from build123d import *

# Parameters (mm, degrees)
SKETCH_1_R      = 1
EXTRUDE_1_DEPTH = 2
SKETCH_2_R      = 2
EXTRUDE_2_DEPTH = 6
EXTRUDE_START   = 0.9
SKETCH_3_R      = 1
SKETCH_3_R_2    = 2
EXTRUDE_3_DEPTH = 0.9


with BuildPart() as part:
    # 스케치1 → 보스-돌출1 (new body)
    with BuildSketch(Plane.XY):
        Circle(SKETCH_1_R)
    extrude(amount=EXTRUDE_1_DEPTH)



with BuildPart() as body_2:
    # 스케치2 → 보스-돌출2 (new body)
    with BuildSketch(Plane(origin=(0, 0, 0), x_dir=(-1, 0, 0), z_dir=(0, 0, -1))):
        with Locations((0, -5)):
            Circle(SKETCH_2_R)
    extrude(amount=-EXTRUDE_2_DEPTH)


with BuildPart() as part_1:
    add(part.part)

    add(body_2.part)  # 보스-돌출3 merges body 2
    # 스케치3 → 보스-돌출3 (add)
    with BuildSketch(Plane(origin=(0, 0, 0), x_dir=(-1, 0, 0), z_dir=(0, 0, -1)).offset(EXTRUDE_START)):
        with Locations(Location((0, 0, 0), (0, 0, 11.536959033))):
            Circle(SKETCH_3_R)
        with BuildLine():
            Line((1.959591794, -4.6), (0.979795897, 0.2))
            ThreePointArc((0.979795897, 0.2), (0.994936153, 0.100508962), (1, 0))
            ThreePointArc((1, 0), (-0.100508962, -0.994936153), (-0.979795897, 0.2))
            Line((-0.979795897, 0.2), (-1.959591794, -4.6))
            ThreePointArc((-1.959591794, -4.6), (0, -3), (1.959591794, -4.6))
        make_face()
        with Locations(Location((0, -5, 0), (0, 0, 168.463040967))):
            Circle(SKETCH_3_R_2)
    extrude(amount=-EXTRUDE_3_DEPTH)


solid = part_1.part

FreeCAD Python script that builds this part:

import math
import FreeCAD as App
import Part
import Sketcher

V = App.Vector
Q = App.Units.Quantity

doc = App.newDocument("Part")
body = doc.addObject("PartDesign::Body", "Body")

# Sketch on XY plane
sketch1 = doc.addObject("Sketcher::SketchObject", "Sketch")
body.addObject(sketch1)
sketch1.AttachmentSupport = (doc.XY_Plane, [""])
sketch1.MapMode = "FlatFace"
sketch1.addGeometry(Part.Circle(V(0, 0, 0), V(0, 0, 1), 1), False)
sketch1.addConstraint(Sketcher.Constraint("Coincident", 0, 3, -1, 1))
sketch1.addConstraint(Sketcher.Constraint("Diameter", 0, Q("2 mm")))
pad1 = doc.addObject("PartDesign::Pad", "Pad")
body.addObject(pad1)
pad1.Profile = sketch1
pad1.Length = 2
body2 = doc.addObject("PartDesign::Body", "Body001")

# Sketch on XY plane
sketch2 = doc.addObject("Sketcher::SketchObject", "Sketch001")
body2.addObject(sketch2)
sketch2.AttachmentSupport = (doc.getObject("XY_Plane001"), [""])
sketch2.MapMode = "FlatFace"
sketch2.addGeometry(Part.Circle(V(0, -5, 0), V(0, 0, 1), 2), False)
sketch2.addConstraint(Sketcher.Constraint("PointOnObject", 0, 3, -2))
sketch2.addConstraint(Sketcher.Constraint("Diameter", 0, Q("4 mm")))
sketch2.addConstraint(Sketcher.Constraint("DistanceY", 0, 3, -1, 1, Q("5 mm")))
pad2 = doc.addObject("PartDesign::Pad", "Pad001")
body2.addObject(pad2)
pad2.Profile = sketch2
pad2.Length = 6
body.AllowCompound = True
doc.recompute()

boolean = doc.addObject("PartDesign::Boolean", "Boolean")
body.addObject(boolean)
boolean.Type = "Fuse"
boolean.addObjects([body2])

# Sketch on XY plane
sketch3 = doc.addObject("Sketcher::SketchObject", "Sketch002")
body.addObject(sketch3)
sketch3.AttachmentSupport = (doc.XY_Plane, [""])
sketch3.MapMode = "FlatFace"
sketch3.AttachmentOffset = App.Placement(V(0, 0, -0.9), App.Rotation())
sketch3.addGeometry(Part.ArcOfCircle(Part.Circle(V(0, 0, 0), V(0, 0, 1), 1), math.radians(12), math.radians(168)), False)
sketch3.addGeometry(Part.LineSegment(V(1, 0.2, 0), V(2, -4.6, 0)), False)
sketch3.addGeometry(Part.ArcOfCircle(Part.Circle(V(0, -5, 0), V(0, 0, 1), 2), math.radians(168), math.radians(372)), False)
sketch3.addGeometry(Part.LineSegment(V(-2, -4.6, 0), V(-1, 0.2, 0)), False)
sketch3.addConstraint(Sketcher.Constraint("Tangent", 0, 1, 1, 1))
sketch3.addConstraint(Sketcher.Constraint("Tangent", 1, 2, 2, 2))
sketch3.addConstraint(Sketcher.Constraint("Tangent", 2, 1, 3, 1))
sketch3.addConstraint(Sketcher.Constraint("Tangent", 3, 2, 0, 2))
sketch3.addConstraint(Sketcher.Constraint("Coincident", 0, 3, -1, 1))
sketch3.addConstraint(Sketcher.Constraint("PointOnObject", 2, 3, -2))
sketch3.addConstraint(Sketcher.Constraint("Radius", 0, Q("1 mm")))
sketch3.addConstraint(Sketcher.Constraint("Radius", 2, Q("2 mm")))
sketch3.addConstraint(Sketcher.Constraint("DistanceY", 2, 3, -1, 1, Q("5 mm")))
pad3 = doc.addObject("PartDesign::Pad", "Pad002")
body.addObject(pad3)
pad3.Profile = sketch3
pad3.Length = 0.9

doc.recompute()
